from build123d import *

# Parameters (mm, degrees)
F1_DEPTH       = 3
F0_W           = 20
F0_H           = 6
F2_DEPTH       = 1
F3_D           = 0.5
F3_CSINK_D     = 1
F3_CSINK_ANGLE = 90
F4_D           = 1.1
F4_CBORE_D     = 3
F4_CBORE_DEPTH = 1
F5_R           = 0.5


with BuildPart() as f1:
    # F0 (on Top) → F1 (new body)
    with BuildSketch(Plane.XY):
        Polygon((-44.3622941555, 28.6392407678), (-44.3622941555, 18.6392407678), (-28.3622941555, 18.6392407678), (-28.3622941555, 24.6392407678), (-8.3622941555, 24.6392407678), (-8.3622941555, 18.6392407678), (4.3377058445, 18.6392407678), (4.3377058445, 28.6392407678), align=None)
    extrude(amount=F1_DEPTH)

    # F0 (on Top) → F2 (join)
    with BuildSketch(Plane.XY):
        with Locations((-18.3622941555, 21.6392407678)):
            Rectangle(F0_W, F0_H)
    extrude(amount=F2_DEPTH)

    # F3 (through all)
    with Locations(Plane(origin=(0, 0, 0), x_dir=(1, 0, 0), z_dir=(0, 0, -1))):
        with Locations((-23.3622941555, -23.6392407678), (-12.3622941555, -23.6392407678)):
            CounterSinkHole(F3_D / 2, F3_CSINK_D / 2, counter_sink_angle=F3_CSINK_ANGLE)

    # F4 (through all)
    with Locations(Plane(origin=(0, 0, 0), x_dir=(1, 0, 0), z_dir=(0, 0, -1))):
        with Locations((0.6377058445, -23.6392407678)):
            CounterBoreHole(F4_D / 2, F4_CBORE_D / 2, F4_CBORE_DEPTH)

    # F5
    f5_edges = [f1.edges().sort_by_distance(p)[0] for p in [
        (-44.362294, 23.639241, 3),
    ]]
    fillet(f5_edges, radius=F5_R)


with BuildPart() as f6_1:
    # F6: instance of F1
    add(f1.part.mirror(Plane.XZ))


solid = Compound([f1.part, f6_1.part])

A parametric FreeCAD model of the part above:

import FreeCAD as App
import Part
import Sketcher

V = App.Vector


def edges_at(feature, points):
    """Names of the edges that pass closest to the given points."""
    edges = feature.Shape.Edges
    near = lambda p: min(range(len(edges)), key=lambda i: edges[i].distToShape(Part.Vertex(*p))[0])
    return sorted({f"Edge{near(p) + 1}" for p in points})

doc = App.newDocument("Part")
params = doc.addObject("Spreadsheet::Sheet", "Params")
for row, (alias, value) in enumerate([
    ("sketch1_width", "16 mm"),
    ("sketch1_width2", "20 mm"),
    ("sketch1_height", "10 mm"),
    ("sketch1_height2", "6 mm"),
    ("sketch1_width3", "12.7 mm"),
    ("pad1_length", "3 mm"),
    ("sketch2_width", "20 mm"),
    ("sketch2_height", "6 mm"),
    ("pad2_length", "1 mm"),
    ("sketch3_diameter", "0.5 mm"),
    ("hole_diameter", "0.5 mm"),
    ("hole_csink_diameter", "1 mm"),
    ("sketch4_diameter", "1.1 mm"),
    ("hole2_diameter", "1.1 mm"),
    ("hole2_cbore_diameter", "3 mm"),
    ("hole2_cbore_depth", "1 mm"),
    ("fillet_radius", "0.5 mm"),
], start=1):
    params.set(f"A{row}", alias)
    params.set(f"B{row}", "=" + value)
    params.setAlias(f"B{row}", alias)

body = doc.addObject("PartDesign::Body", "Body")

# Sketch on XY plane
sketch1 = doc.addObject("Sketcher::SketchObject", "Sketch")
body.addObject(sketch1)
sketch1.AttachmentSupport = (doc.XY_Plane, [""])
sketch1.MapMode = "FlatFace"
sketch1.addGeometry([
    Part.LineSegment(V(-44.362294, 28.639241, 0), V(-44.362294, 18.639241, 0)),  # 0
    Part.LineSegment(V(-44.362294, 18.639241, 0), V(-28.362294, 18.639241, 0)),  # 1
    Part.LineSegment(V(-28.362294, 18.639241, 0), V(-28.362294, 24.639241, 0)),  # 2
    Part.LineSegment(V(-28.362294, 24.639241, 0), V(-8.362294, 24.639241, 0)),  # 3
    Part.LineSegment(V(-8.362294, 24.639241, 0), V(-8.362294, 18.639241, 0)),  # 4
    Part.LineSegment(V(-8.362294, 18.639241, 0), V(4.337706, 18.639241, 0)),  # 5
    Part.LineSegment(V(4.337706, 18.639241, 0), V(4.337706, 28.639241, 0)),  # 6
    Part.LineSegment(V(4.337706, 28.639241, 0), V(-44.362294, 28.639241, 0)),  # 7
], False)
sketch1.addConstraint([
    Sketcher.Constraint("Coincident", 0, 2, 1, 1),
    Sketcher.Constraint("Coincident", 1, 2, 2, 1),
    Sketcher.Constraint("Coincident", 2, 2, 3, 1),
    Sketcher.Constraint("Coincident", 3, 2, 4, 1),
    Sketcher.Constraint("Coincident", 4, 2, 5, 1),
    Sketcher.Constraint("Coincident", 5, 2, 6, 1),
    Sketcher.Constraint("Coincident", 6, 2, 7, 1),
    Sketcher.Constraint("Coincident", 7, 2, 0, 1),
    Sketcher.Constraint("Vertical", 0),
    Sketcher.Constraint("Horizontal", 1),
    Sketcher.Constraint("Vertical", 2),
    Sketcher.Constraint("Horizontal", 3),
    Sketcher.Constraint("Vertical", 4),
    Sketcher.Constraint("Horizontal", 5),
    Sketcher.Constraint("Vertical", 6),
    Sketcher.Constraint("Horizontal", 7),
    Sketcher.Constraint("Horizontal", 1, 2, 4, 2),
    Sketcher.Constraint("DistanceX", 1, 1, 1, 2, 16.0),
    Sketcher.Constraint("DistanceX", 3, 1, 3, 2, 20.0),
    Sketcher.Constraint("DistanceY", 0, 2, 0, 1, 10.0),
    Sketcher.Constraint("DistanceY", 2, 1, 2, 2, 6.0),
    Sketcher.Constraint("DistanceX", 5, 1, 5, 2, 12.7),
    Sketcher.Constraint("DistanceY", -1, 1, 0, 2, 18.639241),
    Sketcher.Constraint("DistanceX", 0, 2, -1, 1, 44.362294),
])
sketch1.setExpression("Constraints[17]", "Params.sketch1_width")
sketch1.setExpression("Constraints[18]", "Params.sketch1_width2")
sketch1.setExpression("Constraints[19]", "Params.sketch1_height")
sketch1.setExpression("Constraints[20]", "Params.sketch1_height2")
sketch1.setExpression("Constraints[21]", "Params.sketch1_width3")
pad1 = doc.addObject("PartDesign::Pad", "Pad")
body.addObject(pad1)
pad1.Profile = sketch1
pad1.setExpression("Length", "Params.pad1_length")

# Sketch on XY plane
sketch2 = doc.addObject("Sketcher::SketchObject", "Sketch001")
body.addObject(sketch2)
sketch2.AttachmentSupport = (doc.XY_Plane, [""])
sketch2.MapMode = "FlatFace"
sketch2.addGeometry([
    Part.LineSegment(V(-28.362294, 24.639241, 0), V(-28.362294, 18.639241, 0)),
    Part.LineSegment(V(-28.362294, 18.639241, 0), V(-8.362294, 18.639241, 0)),
    Part.LineSegment(V(-8.362294, 18.639241, 0), V(-8.362294, 24.639241, 0)),
    Part.LineSegment(V(-8.362294, 24.639241, 0), V(-28.362294, 24.639241, 0)),
], False)
sketch2.addConstraint([
    Sketcher.Constraint("Coincident", 0, 2, 1, 1),
    Sketcher.Constraint("Coincident", 1, 2, 2, 1),
    Sketcher.Constraint("Coincident", 2, 2, 3, 1),
    Sketcher.Constraint("Coincident", 3, 2, 0, 1),
    Sketcher.Constraint("Vertical", 0),
    Sketcher.Constraint("Horizontal", 1),
    Sketcher.Constraint("Vertical", 2),
    Sketcher.Constraint("Horizontal", 3),
    Sketcher.Constraint("DistanceX", 1, 1, 1, 2, 20.0),
    Sketcher.Constraint("DistanceY", 0, 2, 0, 1, 6.0),
    Sketcher.Constraint("DistanceY", -1, 1, 0, 2, 18.639241),
    Sketcher.Constraint("DistanceX", 0, 2, -1, 1, 28.362294),
])
sketch2.setExpression("Constraints[8]", "Params.sketch2_width")
sketch2.setExpression("Constraints[9]", "Params.sketch2_height")
pad2 = doc.addObject("PartDesign::Pad", "Pad001")
body.addObject(pad2)
pad2.Profile = sketch2
pad2.setExpression("Length", "Params.pad2_length")

# Sketch on XY plane
sketch3 = doc.addObject("Sketcher::SketchObject", "Sketch002")
body.addObject(sketch3)
sketch3.AttachmentSupport = (doc.XY_Plane, [""])
sketch3.MapMode = "FlatFace"
sketch3.addGeometry([
    Part.Circle(V(-23.362294, 23.639241, 0), V(0, 0, 1), 0.25),
    Part.Circle(V(-12.362294, 23.639241, 0), V(0, 0, 1), 0.25),
], False)
sketch3.addConstraint([
    Sketcher.Constraint("Equal", 0, 1),
    Sketcher.Constraint("Horizontal", 0, 3, 1, 3),
    Sketcher.Constraint("Diameter", 0, 0.5),
    Sketcher.Constraint("DistanceX", 0, 3, 1, 3, 11.0),
    Sketcher.Constraint("DistanceY", -1, 1, 0, 3, 23.639241),
    Sketcher.Constraint("DistanceX", 0, 3, -1, 1, 23.362294),
])
sketch3.setExpression("Constraints[2]", "Params.sketch3_diameter")
doc.recompute()
hole = doc.addObject("PartDesign::Hole", "Hole")
body.addObject(hole)
hole.Profile = sketch3
hole.ThreadType = "None"
hole.setExpression("Diameter", "Params.hole_diameter")
hole.DepthType = "ThroughAll"
hole.HoleCutType = "Countersink"
hole.setExpression("HoleCutDiameter", "Params.hole_csink_diameter")
hole.HoleCutCountersinkAngle = 90
hole.Reversed = True

# Sketch on XY plane
sketch4 = doc.addObject("Sketcher::SketchObject", "Sketch003")
body.addObject(sketch4)
sketch4.AttachmentSupport = (doc.XY_Plane, [""])
sketch4.MapMode = "FlatFace"
sketch4.addGeometry(Part.Circle(V(0.637706, 23.639241, 0), V(0, 0, 1), 0.55), False)
sketch4.addConstraint([
    Sketcher.Constraint("Diameter", 0, 1.1),
    Sketcher.Constraint("DistanceY", -1, 1, 0, 3, 23.639241),
    Sketcher.Constraint("DistanceX", -1, 1, 0, 3, 0.637706),
])
sketch4.setExpression("Constraints[0]", "Params.sketch4_diameter")
doc.recompute()
hole2 = doc.addObject("PartDesign::Hole", "Hole001")
body.addObject(hole2)
hole2.Profile = sketch4
hole2.ThreadType = "None"
hole2.setExpression("Diameter", "Params.hole2_diameter")
hole2.DepthType = "ThroughAll"
hole2.HoleCutType = "Counterbore"
hole2.setExpression("HoleCutDiameter", "Params.hole2_cbore_diameter")
hole2.setExpression("HoleCutDepth", "Params.hole2_cbore_depth")
hole2.Reversed = True
doc.recompute()

fillet = doc.addObject("PartDesign::Fillet", "Fillet")
body.addObject(fillet)
fillet.Base = (hole2, edges_at(hole2, [(-44.362, 23.639, 3)]))
fillet.setExpression("Radius", "Params.fillet_radius")
body2 = doc.addObject("PartDesign::Body", "Body001")
doc.recompute()

mirroring = doc.addObject("Part::Mirroring", "Mirroring")
mirroring.Source = body
mirroring.Base = V(0, 0, 0)
mirroring.Normal = V(0, -1, 0)
body2.BaseFeature = mirroring
doc.recompute()
mirroring.Visibility = False

doc.recompute()
